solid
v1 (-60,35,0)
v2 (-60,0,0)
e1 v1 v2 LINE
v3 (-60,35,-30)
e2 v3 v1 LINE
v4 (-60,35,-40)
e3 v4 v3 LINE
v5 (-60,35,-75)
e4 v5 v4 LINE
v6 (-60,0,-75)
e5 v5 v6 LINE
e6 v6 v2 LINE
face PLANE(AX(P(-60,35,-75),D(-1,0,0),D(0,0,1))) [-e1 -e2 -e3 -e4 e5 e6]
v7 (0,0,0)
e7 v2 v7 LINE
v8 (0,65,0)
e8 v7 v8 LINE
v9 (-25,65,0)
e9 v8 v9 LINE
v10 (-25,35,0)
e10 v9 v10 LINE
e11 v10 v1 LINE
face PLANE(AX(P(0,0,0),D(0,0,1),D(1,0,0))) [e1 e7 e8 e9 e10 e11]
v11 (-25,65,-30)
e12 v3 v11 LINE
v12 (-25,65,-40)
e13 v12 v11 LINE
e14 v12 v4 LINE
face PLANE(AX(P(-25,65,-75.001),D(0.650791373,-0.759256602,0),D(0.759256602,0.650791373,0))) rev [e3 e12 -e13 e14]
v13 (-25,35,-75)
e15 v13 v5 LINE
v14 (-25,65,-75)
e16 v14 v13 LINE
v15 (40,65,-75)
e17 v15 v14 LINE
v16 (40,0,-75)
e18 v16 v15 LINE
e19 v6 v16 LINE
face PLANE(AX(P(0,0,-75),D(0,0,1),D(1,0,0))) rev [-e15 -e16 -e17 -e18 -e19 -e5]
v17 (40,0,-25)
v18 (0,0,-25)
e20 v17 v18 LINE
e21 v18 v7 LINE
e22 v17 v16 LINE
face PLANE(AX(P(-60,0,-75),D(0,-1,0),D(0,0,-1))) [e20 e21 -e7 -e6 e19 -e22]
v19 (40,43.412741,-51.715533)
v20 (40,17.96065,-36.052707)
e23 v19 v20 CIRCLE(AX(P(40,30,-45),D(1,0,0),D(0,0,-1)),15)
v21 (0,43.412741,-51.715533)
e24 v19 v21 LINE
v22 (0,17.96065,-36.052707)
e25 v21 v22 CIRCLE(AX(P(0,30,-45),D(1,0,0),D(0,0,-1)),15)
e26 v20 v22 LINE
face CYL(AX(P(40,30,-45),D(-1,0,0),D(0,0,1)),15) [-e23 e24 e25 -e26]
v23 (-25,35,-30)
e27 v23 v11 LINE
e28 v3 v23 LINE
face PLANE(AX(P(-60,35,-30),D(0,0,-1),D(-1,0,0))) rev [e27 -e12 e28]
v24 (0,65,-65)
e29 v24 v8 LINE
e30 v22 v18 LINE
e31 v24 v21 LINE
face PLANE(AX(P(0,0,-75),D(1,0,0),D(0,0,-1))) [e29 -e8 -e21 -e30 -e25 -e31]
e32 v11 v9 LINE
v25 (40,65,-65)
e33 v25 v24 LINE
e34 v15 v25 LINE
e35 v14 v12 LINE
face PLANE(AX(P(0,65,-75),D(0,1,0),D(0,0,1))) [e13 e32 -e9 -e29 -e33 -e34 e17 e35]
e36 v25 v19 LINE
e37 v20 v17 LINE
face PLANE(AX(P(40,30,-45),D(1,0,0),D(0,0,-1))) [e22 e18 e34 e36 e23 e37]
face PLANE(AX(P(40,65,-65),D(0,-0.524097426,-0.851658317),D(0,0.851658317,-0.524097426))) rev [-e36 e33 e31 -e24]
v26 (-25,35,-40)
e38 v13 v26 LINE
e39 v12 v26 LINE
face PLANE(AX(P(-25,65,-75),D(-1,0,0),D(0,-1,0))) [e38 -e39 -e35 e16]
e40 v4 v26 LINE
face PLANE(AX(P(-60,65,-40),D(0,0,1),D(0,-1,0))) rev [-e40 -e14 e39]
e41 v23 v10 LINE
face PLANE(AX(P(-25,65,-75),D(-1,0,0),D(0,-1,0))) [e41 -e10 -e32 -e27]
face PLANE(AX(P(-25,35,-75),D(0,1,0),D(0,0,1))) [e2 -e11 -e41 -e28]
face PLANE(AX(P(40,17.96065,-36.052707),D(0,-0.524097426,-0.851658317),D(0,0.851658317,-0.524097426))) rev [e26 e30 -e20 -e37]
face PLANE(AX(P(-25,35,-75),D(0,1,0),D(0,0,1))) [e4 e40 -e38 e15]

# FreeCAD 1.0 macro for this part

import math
import FreeCAD as App
import Part
import Sketcher
from FreeCAD import Vector

doc = App.newDocument("Part")
params = doc.addObject("Spreadsheet::Sheet", "Params")
for row, (alias, value) in enumerate([
    ("sketch1_width", "60 mm"),
    ("sketch1_width2", "25 mm"),
    ("sketch1_height", "65 mm"),
    ("pad1_length", "75 mm"),
    ("sketch2_radius", "15 mm"),
    ("sketch2_width", "65 mm"),
    ("sketch2_height", "50 mm"),
    ("sketch2_height2", "10 mm"),
    ("pad2_length", "40 mm"),
    ("sketch3_width", "30 mm"),
    ("sketch3_height", "10 mm"),
    ("pad3_length", "35 mm"),
    ("sketch4_width", "35 mm"),
    ("sketch4_height", "30 mm"),
], start=1):
    params.set(f"A{row}", alias)
    params.set(f"B{row}", "=" + value)
    params.setAlias(f"B{row}", alias)

body = doc.addObject("PartDesign::Body", "Body")

sketch1 = doc.addObject("Sketcher::SketchObject", "Sketch")
body.addObject(sketch1)
sketch1.AttachmentSupport = (doc.XY_Plane, [""])
sketch1.MapMode = "FlatFace"
sketch1.addGeometry(Part.LineSegment(Vector(-60, 35, 0), Vector(-60, 0, 0)), False)
sketch1.addGeometry(Part.LineSegment(Vector(-60, 0, 0), Vector(0, 0, 0)), False)
sketch1.addGeometry(Part.LineSegment(Vector(0, 0, 0), Vector(0, 65, 0)), False)
sketch1.addGeometry(Part.LineSegment(Vector(0, 65, 0), Vector(-25, 65, 0)), False)
sketch1.addGeometry(Part.LineSegment(Vector(-25, 65, 0), Vector(-25, 35, 0)), False)
sketch1.addGeometry(Part.LineSegment(Vector(-25, 35, 0), Vector(-60, 35, 0)), False)
sketch1.addConstraint(Sketcher.Constraint("Coincident", 0, 2, 1, 1))
sketch1.addConstraint(Sketcher.Constraint("Coincident", 1, 2, 2, 1))
sketch1.addConstraint(Sketcher.Constraint("Coincident", 2, 2, 3, 1))
sketch1.addConstraint(Sketcher.Constraint("Coincident", 3, 2, 4, 1))
sketch1.addConstraint(Sketcher.Constraint("Coincident", 4, 2, 5, 1))
sketch1.addConstraint(Sketcher.Constraint("Coincident", 5, 2, 0, 1))
sketch1.addConstraint(Sketcher.Constraint("Vertical", 0))
sketch1.addConstraint(Sketcher.Constraint("Horizontal", 1))
sketch1.addConstraint(Sketcher.Constraint("Vertical", 2))
sketch1.addConstraint(Sketcher.Constraint("Horizontal", 3))
sketch1.addConstraint(Sketcher.Constraint("Vertical", 4))
sketch1.addConstraint(Sketcher.Constraint("Horizontal", 5))
sketch1.addConstraint(Sketcher.Constraint("Coincident", 1, 2, -1, 1))
sketch1.addConstraint(Sketcher.Constraint("Equal", 5, 0))
sketch1.addConstraint(Sketcher.Constraint("DistanceX", 1, 1, 1, 2, 60.0))
sketch1.addConstraint(Sketcher.Constraint("DistanceX", 3, 2, 3, 1, 25.0))
sketch1.addConstraint(Sketcher.Constraint("DistanceY", 2, 1, 2, 2, 65.0))
sketch1.setExpression("Constraints[14]", "Params.sketch1_width")
sketch1.setExpression("Constraints[15]", "Params.sketch1_width2")
sketch1.setExpression("Constraints[16]", "Params.sketch1_height")
pad1 = doc.addObject("PartDesign::Pad", "Pad")
body.addObject(pad1)
pad1.Profile = sketch1
pad1.setExpression("Length", "Params.pad1_length")
pad1.Reversed = True

sketch2 = doc.addObject("Sketcher::SketchObject", "Sketch001")
body.addObject(sketch2)
sketch2.AttachmentSupport = (doc.YZ_Plane, [""])
sketch2.MapMode = "FlatFace"
sketch2.addGeometry(Part.LineSegment(Vector(65, -65, 0), Vector(43, -52, 0)), False)
sketch2.addGeometry(Part.ArcOfCircle(Part.Circle(Vector(30, -45, 0), Vector(0, 0, 1), 15), math.radians(-27), math.radians(143)), False)
sketch2.addGeometry(Part.LineSegment(Vector(18, -36, 0), Vector(0, -25, 0)), False)
sketch2.addGeometry(Part.LineSegment(Vector(0, -25, 0), Vector(0, -75, 0)), False)
sketch2.addGeometry(Part.LineSegment(Vector(0, -75, 0), Vector(65, -75, 0)), False)
sketch2.addGeometry(Part.LineSegment(Vector(65, -75, 0), Vector(65, -65, 0)), False)
sketch2.addConstraint(Sketcher.Constraint("Coincident", 0, 2, 1, 1))
sketch2.addConstraint(Sketcher.Constraint("Coincident", 1, 2, 2, 1))
sketch2.addConstraint(Sketcher.Constraint("Coincident", 2, 2, 3, 1))
sketch2.addConstraint(Sketcher.Constraint("Coincident", 3, 2, 4, 1))
sketch2.addConstraint(Sketcher.Constraint("Coincident", 4, 2, 5, 1))
sketch2.addConstraint(Sketcher.Constraint("Coincident", 5, 2, 0, 1))
sketch2.addConstraint(Sketcher.Constraint("Vertical", 3))
sketch2.addConstraint(Sketcher.Constraint("Horizontal", 4))
sketch2.addConstraint(Sketcher.Constraint("Vertical", 5))
sketch2.addConstraint(Sketcher.Constraint("PointOnObject", 2, 2, -2))
sketch2.addConstraint(Sketcher.Constraint("Parallel", 0, 2))
sketch2.addConstraint(Sketcher.Constraint("Radius", 1, 15.0))
sketch2.addConstraint(Sketcher.Constraint("DistanceX", 4, 1, 4, 2, 65.0))
sketch2.addConstraint(Sketcher.Constraint("DistanceY", 3, 2, 3, 1, 50.0))
sketch2.addConstraint(Sketcher.Constraint("DistanceY", 5, 1, 5, 2, 10.0))
sketch2.addConstraint(Sketcher.Constraint("DistanceX", -1, 1, 1, 3, 30.0))
sketch2.addConstraint(Sketcher.Constraint("DistanceY", 1, 3, -1, 1, 45.0))
sketch2.addConstraint(Sketcher.Constraint("DistanceY", 2, 2, -1, 1, 25.0))
sketch2.addConstraint(Sketcher.Constraint("DistanceX", -1, 1, 0, 2, 43.412741))
sketch2.setExpression("Constraints[11]", "Params.sketch2_radius")
sketch2.setExpression("Constraints[12]", "Params.sketch2_width")
sketch2.setExpression("Constraints[13]", "Params.sketch2_height")
sketch2.setExpression("Constraints[14]", "Params.sketch2_height2")
pad2 = doc.addObject("PartDesign::Pad", "Pad001")
body.addObject(pad2)
pad2.Profile = sketch2
pad2.setExpression("Length", "Params.pad2_length")

sketch3 = doc.addObject("Sketcher::SketchObject", "Sketch002")
body.addObject(sketch3)
sketch3.AttachmentSupport = (doc.YZ_Plane, [""])
sketch3.MapMode = "FlatFace"
sketch3.AttachmentOffset = App.Placement(Vector(0, 0, -25), App.Rotation())
sketch3.addGeometry(Part.LineSegment(Vector(65, -40, 0), Vector(35, -40, 0)), False)
sketch3.addGeometry(Part.LineSegment(Vector(35, -40, 0), Vector(35, -30, 0)), False)
sketch3.addGeometry(Part.LineSegment(Vector(35, -30, 0), Vector(65, -30, 0)), False)
sketch3.addGeometry(Part.LineSegment(Vector(65, -30, 0), Vector(65, -40, 0)), False)
sketch3.addConstraint(Sketcher.Constraint("Coincident", 0, 2, 1, 1))
sketch3.addConstraint(Sketcher.Constraint("Coincident", 1, 2, 2, 1))
sketch3.addConstraint(Sketcher.Constraint("Coincident", 2, 2, 3, 1))
sketch3.addConstraint(Sketcher.Constraint("Coincident", 3, 2, 0, 1))
sketch3.addConstraint(Sketcher.Constraint("Horizontal", 0))
sketch3.addConstraint(Sketcher.Constraint("Vertical", 1))
sketch3.addConstraint(Sketcher.Constraint("Horizontal", 2))
sketch3.addConstraint(Sketcher.Constraint("Vertical", 3))
sketch3.addConstraint(Sketcher.Constraint("DistanceX", 0, 2, 0, 1, 30.0))
sketch3.addConstraint(Sketcher.Constraint("DistanceY", 1, 1, 1, 2, 10.0))
sketch3.addConstraint(Sketcher.Constraint("DistanceX", -1, 1, 0, 2, 35.0))
sketch3.addConstraint(Sketcher.Constraint("DistanceY", 0, 2, -1, 1, 40.0))
sketch3.setExpression("Constraints[8]", "Params.sketch3_width")
sketch3.setExpression("Constraints[9]", "Params.sketch3_height")
pad3 = doc.addObject("PartDesign::Pad", "Pad002")
body.addObject(pad3)
pad3.Profile = sketch3
pad3.setExpression("Length", "Params.pad3_length")
pad3.Reversed = True

sketch4 = doc.addObject("Sketcher::SketchObject", "Sketch003")
body.addObject(sketch4)
sketch4.AttachmentSupport = (doc.XY_Plane, [""])
sketch4.MapMode = "FlatFace"
sketch4.AttachmentOffset = App.Placement(Vector(0, 0, -30), App.Rotation())
sketch4.addGeometry(Part.LineSegment(Vector(-60, 35, 0), Vector(-25, 65, 0)), False)
sketch4.addGeometry(Part.LineSegment(Vector(-25, 65, 0), Vector(-60, 65, 0)), False)
sketch4.addGeometry(Part.LineSegment(Vector(-60, 65, 0), Vector(-60, 35, 0)), False)
sketch4.addConstraint(Sketcher.Constraint("Coincident", 0, 2, 1, 1))
sketch4.addConstraint(Sketcher.Constraint("Coincident", 1, 2, 2, 1))
sketch4.addConstraint(Sketcher.Constraint("Coincident", 2, 2, 0, 1))
sketch4.addConstraint(Sketcher.Constraint("Horizontal", 1))
sketch4.addConstraint(Sketcher.Constraint("Vertical", 2))
sketch4.addConstraint(Sketcher.Constraint("DistanceX", 1, 2, 1, 1, 35.0))
sketch4.addConstraint(Sketcher.Constraint("DistanceY", 2, 2, 2, 1, 30.0))
sketch4.addConstraint(Sketcher.Constraint("DistanceX", 0, 2, -1, 1, 25.0))
sketch4.addConstraint(Sketcher.Constraint("DistanceY", -1, 1, 0, 2, 65.0))
sketch4.setExpression("Constraints[5]", "Params.sketch4_width")
sketch4.setExpression("Constraints[6]", "Params.sketch4_height")
pocket1 = doc.addObject("PartDesign::Pocket", "Pocket")
body.addObject(pocket1)
pocket1.Profile = sketch4
pocket1.Type = "UpToFirst"

doc.recompute()
